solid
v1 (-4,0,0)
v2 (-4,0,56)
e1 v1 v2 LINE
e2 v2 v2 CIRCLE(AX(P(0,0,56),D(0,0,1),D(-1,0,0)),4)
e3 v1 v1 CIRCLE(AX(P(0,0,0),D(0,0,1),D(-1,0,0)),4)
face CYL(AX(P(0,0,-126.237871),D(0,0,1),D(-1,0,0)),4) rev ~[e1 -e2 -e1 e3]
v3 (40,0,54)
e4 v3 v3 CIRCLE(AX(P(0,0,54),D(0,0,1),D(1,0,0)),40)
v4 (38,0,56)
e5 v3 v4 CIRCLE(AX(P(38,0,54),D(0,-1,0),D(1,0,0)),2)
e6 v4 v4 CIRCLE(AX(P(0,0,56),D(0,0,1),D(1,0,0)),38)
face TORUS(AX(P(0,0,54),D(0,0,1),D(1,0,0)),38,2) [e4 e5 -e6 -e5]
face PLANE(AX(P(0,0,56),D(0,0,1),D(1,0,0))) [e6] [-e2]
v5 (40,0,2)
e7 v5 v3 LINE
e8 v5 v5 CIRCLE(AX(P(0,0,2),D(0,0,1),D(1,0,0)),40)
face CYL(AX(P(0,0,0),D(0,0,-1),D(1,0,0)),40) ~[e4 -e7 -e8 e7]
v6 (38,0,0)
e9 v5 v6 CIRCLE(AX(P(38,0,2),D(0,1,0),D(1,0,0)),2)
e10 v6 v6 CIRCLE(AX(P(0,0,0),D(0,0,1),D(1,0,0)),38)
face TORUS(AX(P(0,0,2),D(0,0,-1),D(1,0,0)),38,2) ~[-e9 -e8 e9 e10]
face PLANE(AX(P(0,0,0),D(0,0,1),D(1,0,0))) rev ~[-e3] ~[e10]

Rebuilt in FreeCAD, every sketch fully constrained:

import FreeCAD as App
import Part
import Sketcher


def edges_at(feature, points):
    """Names of the edges that pass closest to the given points."""
    edges = feature.Shape.Edges
    near = lambda p: min(range(len(edges)), key=lambda i: edges[i].distToShape(Part.Vertex(*p))[0])
    return sorted({f"Edge{near(p) + 1}" for p in points})

doc = App.newDocument("Part")
params = doc.addObject("Spreadsheet::Sheet", "Params")
for row, (alias, value) in enumerate([
    ("sketch1_diameter", "80 mm"),
    ("pad1_length", "56 mm"),
    ("sketch2_diameter", "8 mm"),
    ("hole_diameter", "8 mm"),
    ("fillet_radius", "2 mm"),
], start=1):
    params.set(f"A{row}", alias)
    params.set(f"B{row}", "=" + value)
    params.setAlias(f"B{row}", alias)

body = doc.addObject("PartDesign::Body", "Body")

sketch1 = doc.addObject("Sketcher::SketchObject", "Sketch")
body.addObject(sketch1)
sketch1.AttachmentSupport = (doc.XY_Plane, [""])
sketch1.MapMode = "FlatFace"
sketch1.addGeometry(Part.Circle(App.Vector(0, 0, 0), App.Vector(0, 0, 1), 40), False)
sketch1.addConstraint([
    Sketcher.Constraint("Coincident", 0, 3, -1, 1),
    Sketcher.Constraint("Diameter", 0, 80.0),
])
sketch1.setExpression("Constraints[1]", "Params.sketch1_diameter")
pad1 = doc.addObject("PartDesign::Pad", "Pad")
body.addObject(pad1)
pad1.Profile = sketch1
pad1.setExpression("Length", "Params.pad1_length")

sketch2 = doc.addObject("Sketcher::SketchObject", "Sketch001")
body.addObject(sketch2)
sketch2.AttachmentSupport = (doc.XY_Plane, [""])
sketch2.MapMode = "FlatFace"
sketch2.addGeometry(Part.Circle(App.Vector(0, 0, 0), App.Vector(0, 0, 1), 4), False)
sketch2.addConstraint([
    Sketcher.Constraint("Coincident", 0, 3, -1, 1),
    Sketcher.Constraint("Diameter", 0, 8.0),
])
sketch2.setExpression("Constraints[1]", "Params.sketch2_diameter")
doc.recompute()
hole = doc.addObject("PartDesign::Hole", "Hole")
body.addObject(hole)
hole.Profile = sketch2
hole.ThreadType = "None"
hole.setExpression("Diameter", "Params.hole_diameter")
hole.DepthType = "ThroughAll"
hole.Reversed = True
doc.recompute()

fillet = doc.addObject("PartDesign::Fillet", "Fillet")
body.addObject(fillet)
fillet.Base = (hole, edges_at(hole, [(40, 0, 28), (-40, 0, 0), (-40, 0, 56)]))
fillet.setExpression("Radius", "Params.fillet_radius")

doc.recompute()
